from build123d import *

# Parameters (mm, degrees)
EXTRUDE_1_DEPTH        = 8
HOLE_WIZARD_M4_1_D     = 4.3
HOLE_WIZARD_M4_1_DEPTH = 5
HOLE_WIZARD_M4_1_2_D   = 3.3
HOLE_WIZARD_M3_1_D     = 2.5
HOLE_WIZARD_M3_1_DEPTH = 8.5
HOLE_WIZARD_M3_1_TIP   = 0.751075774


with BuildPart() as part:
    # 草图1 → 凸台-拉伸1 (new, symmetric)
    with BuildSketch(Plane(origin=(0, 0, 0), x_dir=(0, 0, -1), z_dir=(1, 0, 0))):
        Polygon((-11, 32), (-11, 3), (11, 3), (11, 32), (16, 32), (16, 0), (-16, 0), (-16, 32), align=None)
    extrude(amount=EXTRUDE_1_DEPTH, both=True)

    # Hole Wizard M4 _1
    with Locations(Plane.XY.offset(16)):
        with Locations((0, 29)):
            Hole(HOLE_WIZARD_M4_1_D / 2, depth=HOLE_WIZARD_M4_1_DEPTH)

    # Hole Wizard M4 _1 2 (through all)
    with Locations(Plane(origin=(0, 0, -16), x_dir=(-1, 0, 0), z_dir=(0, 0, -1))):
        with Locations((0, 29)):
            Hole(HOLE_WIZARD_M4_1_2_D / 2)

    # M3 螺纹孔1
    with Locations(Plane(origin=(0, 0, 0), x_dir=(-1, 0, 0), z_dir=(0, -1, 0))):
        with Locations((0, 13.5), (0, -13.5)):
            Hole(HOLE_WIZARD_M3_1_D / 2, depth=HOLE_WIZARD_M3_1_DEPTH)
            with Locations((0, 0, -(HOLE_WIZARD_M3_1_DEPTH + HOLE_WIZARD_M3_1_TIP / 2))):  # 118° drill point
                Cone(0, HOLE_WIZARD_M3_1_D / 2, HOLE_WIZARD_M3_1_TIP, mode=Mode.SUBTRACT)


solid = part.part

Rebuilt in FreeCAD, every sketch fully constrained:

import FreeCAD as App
import Part
import Sketcher
from FreeCAD import Vector
Q = App.Units.Quantity


def add_polygon(sketch, points):
    """Adds a closed chain of lines whose ends are joined by coincident constraints."""
    first, n = sketch.GeometryCount, len(points)
    for a, b in zip(points, points[1:] + points[:1]):
        sketch.addGeometry(Part.LineSegment(App.Vector(*a, 0), App.Vector(*b, 0)), False)
    for i in range(n):
        sketch.addConstraint(Sketcher.Constraint("Coincident", first + i, 2, first + (i + 1) % n, 1))

doc = App.newDocument("Part")
body = doc.addObject("PartDesign::Body", "Body")

sketch1 = body.newObject("Sketcher::SketchObject", "Sketch")
sketch1.AttachmentSupport = (doc.getObject("YZ_Plane"), [""])
sketch1.MapMode = "FlatFace"
add_polygon(sketch1, [(3, 11), (32, 11), (32, 16), (0, 16), (0, -16), (32, -16), (32, -11), (3, -11)])
sketch1.addConstraint(Sketcher.Constraint("Horizontal", 0))
sketch1.addConstraint(Sketcher.Constraint("Vertical", 1))
sketch1.addConstraint(Sketcher.Constraint("Horizontal", 2))
sketch1.addConstraint(Sketcher.Constraint("Vertical", 3))
sketch1.addConstraint(Sketcher.Constraint("Horizontal", 4))
sketch1.addConstraint(Sketcher.Constraint("Vertical", 5))
sketch1.addConstraint(Sketcher.Constraint("Horizontal", 6))
sketch1.addConstraint(Sketcher.Constraint("Vertical", 7))
sketch1.addConstraint(Sketcher.Constraint("Symmetric", 2, 2, 3, 2, -1, 1))
sketch1.addConstraint(Sketcher.Constraint("Symmetric", 0, 2, 5, 2, -1))
sketch1.addConstraint(Sketcher.Constraint("Equal", 4, 3))
sketch1.addConstraint(Sketcher.Constraint("DistanceX", 0, 1, 0, 2, Q("29 mm")))
sketch1.addConstraint(Sketcher.Constraint("DistanceX", 2, 2, 2, 1, Q("32 mm")))
sketch1.addConstraint(Sketcher.Constraint("DistanceY", 1, 1, 1, 2, Q("5 mm")))
pad1 = body.newObject("PartDesign::Pad", "Pad")
pad1.Profile = sketch1
pad1.Length = 16
pad1.Midplane = True

sketch2 = body.newObject("Sketcher::SketchObject", "Sketch001")
sketch2.AttachmentSupport = (doc.getObject("XY_Plane"), [""])
sketch2.MapMode = "FlatFace"
sketch2.AttachmentOffset = App.Placement(Vector(0, 0, 16), App.Rotation())
sketch2.addGeometry(Part.Circle(Vector(0, 29, 0), Vector(0, 0, 1), 2.15), False)
sketch2.addConstraint(Sketcher.Constraint("PointOnObject", 0, 3, -2))
sketch2.addConstraint(Sketcher.Constraint("Diameter", 0, Q("4.3 mm")))
sketch2.addConstraint(Sketcher.Constraint("DistanceY", -1, 1, 0, 3, Q("29 mm")))
doc.recompute()
hole = body.newObject("PartDesign::Hole", "Hole")
hole.Profile = sketch2
hole.ThreadType = "None"
hole.Diameter = 4.3
hole.DepthType = "Dimension"
hole.Depth = 5
hole.DrillPoint = "Flat"

sketch3 = body.newObject("Sketcher::SketchObject", "Sketch002")
sketch3.AttachmentSupport = (doc.getObject("XY_Plane"), [""])
sketch3.MapMode = "FlatFace"
sketch3.AttachmentOffset = App.Placement(Vector(0, 0, -16), App.Rotation())
sketch3.addGeometry(Part.Circle(Vector(0, 29, 0), Vector(0, 0, 1), 1.65), False)
sketch3.addConstraint(Sketcher.Constraint("PointOnObject", 0, 3, -2))
sketch3.addConstraint(Sketcher.Constraint("Diameter", 0, Q("3.3 mm")))
sketch3.addConstraint(Sketcher.Constraint("DistanceY", -1, 1, 0, 3, Q("29 mm")))
doc.recompute()
hole2 = body.newObject("PartDesign::Hole", "Hole001")
hole2.Profile = sketch3
hole2.ThreadType = "None"
hole2.Diameter = 3.3
hole2.DepthType = "ThroughAll"
hole2.Reversed = True

sketch4 = body.newObject("Sketcher::SketchObject", "Sketch003")
sketch4.AttachmentSupport = (doc.getObject("XZ_Plane"), [""])
sketch4.MapMode = "FlatFace"
sketch4.addGeometry(Part.Circle(Vector(0, -13.5, 0), Vector(0, 0, 1), 1.25), False)
sketch4.addGeometry(Part.Circle(Vector(0, 13.5, 0), Vector(0, 0, 1), 1.25), False)
sketch4.addConstraint(Sketcher.Constraint("Equal", 0, 1))
sketch4.addConstraint(Sketcher.Constraint("Symmetric", 0, 3, 1, 3, -1, 1))
sketch4.addConstraint(Sketcher.Constraint("PointOnObject", 0, 3, -2))
sketch4.addConstraint(Sketcher.Constraint("Diameter", 0, Q("2.5 mm")))
sketch4.addConstraint(Sketcher.Constraint("DistanceY", 0, 3, 1, 3, Q("27 mm")))
doc.recompute()
hole3 = body.newObject("PartDesign::Hole", "Hole002")
hole3.Profile = sketch4
hole3.ThreadType = "None"
hole3.Diameter = 2.5
hole3.DepthType = "Dimension"
hole3.Depth = 8.5
hole3.DrillPoint = "Angled"
hole3.DrillPointAngle = 118

doc.recompute()
